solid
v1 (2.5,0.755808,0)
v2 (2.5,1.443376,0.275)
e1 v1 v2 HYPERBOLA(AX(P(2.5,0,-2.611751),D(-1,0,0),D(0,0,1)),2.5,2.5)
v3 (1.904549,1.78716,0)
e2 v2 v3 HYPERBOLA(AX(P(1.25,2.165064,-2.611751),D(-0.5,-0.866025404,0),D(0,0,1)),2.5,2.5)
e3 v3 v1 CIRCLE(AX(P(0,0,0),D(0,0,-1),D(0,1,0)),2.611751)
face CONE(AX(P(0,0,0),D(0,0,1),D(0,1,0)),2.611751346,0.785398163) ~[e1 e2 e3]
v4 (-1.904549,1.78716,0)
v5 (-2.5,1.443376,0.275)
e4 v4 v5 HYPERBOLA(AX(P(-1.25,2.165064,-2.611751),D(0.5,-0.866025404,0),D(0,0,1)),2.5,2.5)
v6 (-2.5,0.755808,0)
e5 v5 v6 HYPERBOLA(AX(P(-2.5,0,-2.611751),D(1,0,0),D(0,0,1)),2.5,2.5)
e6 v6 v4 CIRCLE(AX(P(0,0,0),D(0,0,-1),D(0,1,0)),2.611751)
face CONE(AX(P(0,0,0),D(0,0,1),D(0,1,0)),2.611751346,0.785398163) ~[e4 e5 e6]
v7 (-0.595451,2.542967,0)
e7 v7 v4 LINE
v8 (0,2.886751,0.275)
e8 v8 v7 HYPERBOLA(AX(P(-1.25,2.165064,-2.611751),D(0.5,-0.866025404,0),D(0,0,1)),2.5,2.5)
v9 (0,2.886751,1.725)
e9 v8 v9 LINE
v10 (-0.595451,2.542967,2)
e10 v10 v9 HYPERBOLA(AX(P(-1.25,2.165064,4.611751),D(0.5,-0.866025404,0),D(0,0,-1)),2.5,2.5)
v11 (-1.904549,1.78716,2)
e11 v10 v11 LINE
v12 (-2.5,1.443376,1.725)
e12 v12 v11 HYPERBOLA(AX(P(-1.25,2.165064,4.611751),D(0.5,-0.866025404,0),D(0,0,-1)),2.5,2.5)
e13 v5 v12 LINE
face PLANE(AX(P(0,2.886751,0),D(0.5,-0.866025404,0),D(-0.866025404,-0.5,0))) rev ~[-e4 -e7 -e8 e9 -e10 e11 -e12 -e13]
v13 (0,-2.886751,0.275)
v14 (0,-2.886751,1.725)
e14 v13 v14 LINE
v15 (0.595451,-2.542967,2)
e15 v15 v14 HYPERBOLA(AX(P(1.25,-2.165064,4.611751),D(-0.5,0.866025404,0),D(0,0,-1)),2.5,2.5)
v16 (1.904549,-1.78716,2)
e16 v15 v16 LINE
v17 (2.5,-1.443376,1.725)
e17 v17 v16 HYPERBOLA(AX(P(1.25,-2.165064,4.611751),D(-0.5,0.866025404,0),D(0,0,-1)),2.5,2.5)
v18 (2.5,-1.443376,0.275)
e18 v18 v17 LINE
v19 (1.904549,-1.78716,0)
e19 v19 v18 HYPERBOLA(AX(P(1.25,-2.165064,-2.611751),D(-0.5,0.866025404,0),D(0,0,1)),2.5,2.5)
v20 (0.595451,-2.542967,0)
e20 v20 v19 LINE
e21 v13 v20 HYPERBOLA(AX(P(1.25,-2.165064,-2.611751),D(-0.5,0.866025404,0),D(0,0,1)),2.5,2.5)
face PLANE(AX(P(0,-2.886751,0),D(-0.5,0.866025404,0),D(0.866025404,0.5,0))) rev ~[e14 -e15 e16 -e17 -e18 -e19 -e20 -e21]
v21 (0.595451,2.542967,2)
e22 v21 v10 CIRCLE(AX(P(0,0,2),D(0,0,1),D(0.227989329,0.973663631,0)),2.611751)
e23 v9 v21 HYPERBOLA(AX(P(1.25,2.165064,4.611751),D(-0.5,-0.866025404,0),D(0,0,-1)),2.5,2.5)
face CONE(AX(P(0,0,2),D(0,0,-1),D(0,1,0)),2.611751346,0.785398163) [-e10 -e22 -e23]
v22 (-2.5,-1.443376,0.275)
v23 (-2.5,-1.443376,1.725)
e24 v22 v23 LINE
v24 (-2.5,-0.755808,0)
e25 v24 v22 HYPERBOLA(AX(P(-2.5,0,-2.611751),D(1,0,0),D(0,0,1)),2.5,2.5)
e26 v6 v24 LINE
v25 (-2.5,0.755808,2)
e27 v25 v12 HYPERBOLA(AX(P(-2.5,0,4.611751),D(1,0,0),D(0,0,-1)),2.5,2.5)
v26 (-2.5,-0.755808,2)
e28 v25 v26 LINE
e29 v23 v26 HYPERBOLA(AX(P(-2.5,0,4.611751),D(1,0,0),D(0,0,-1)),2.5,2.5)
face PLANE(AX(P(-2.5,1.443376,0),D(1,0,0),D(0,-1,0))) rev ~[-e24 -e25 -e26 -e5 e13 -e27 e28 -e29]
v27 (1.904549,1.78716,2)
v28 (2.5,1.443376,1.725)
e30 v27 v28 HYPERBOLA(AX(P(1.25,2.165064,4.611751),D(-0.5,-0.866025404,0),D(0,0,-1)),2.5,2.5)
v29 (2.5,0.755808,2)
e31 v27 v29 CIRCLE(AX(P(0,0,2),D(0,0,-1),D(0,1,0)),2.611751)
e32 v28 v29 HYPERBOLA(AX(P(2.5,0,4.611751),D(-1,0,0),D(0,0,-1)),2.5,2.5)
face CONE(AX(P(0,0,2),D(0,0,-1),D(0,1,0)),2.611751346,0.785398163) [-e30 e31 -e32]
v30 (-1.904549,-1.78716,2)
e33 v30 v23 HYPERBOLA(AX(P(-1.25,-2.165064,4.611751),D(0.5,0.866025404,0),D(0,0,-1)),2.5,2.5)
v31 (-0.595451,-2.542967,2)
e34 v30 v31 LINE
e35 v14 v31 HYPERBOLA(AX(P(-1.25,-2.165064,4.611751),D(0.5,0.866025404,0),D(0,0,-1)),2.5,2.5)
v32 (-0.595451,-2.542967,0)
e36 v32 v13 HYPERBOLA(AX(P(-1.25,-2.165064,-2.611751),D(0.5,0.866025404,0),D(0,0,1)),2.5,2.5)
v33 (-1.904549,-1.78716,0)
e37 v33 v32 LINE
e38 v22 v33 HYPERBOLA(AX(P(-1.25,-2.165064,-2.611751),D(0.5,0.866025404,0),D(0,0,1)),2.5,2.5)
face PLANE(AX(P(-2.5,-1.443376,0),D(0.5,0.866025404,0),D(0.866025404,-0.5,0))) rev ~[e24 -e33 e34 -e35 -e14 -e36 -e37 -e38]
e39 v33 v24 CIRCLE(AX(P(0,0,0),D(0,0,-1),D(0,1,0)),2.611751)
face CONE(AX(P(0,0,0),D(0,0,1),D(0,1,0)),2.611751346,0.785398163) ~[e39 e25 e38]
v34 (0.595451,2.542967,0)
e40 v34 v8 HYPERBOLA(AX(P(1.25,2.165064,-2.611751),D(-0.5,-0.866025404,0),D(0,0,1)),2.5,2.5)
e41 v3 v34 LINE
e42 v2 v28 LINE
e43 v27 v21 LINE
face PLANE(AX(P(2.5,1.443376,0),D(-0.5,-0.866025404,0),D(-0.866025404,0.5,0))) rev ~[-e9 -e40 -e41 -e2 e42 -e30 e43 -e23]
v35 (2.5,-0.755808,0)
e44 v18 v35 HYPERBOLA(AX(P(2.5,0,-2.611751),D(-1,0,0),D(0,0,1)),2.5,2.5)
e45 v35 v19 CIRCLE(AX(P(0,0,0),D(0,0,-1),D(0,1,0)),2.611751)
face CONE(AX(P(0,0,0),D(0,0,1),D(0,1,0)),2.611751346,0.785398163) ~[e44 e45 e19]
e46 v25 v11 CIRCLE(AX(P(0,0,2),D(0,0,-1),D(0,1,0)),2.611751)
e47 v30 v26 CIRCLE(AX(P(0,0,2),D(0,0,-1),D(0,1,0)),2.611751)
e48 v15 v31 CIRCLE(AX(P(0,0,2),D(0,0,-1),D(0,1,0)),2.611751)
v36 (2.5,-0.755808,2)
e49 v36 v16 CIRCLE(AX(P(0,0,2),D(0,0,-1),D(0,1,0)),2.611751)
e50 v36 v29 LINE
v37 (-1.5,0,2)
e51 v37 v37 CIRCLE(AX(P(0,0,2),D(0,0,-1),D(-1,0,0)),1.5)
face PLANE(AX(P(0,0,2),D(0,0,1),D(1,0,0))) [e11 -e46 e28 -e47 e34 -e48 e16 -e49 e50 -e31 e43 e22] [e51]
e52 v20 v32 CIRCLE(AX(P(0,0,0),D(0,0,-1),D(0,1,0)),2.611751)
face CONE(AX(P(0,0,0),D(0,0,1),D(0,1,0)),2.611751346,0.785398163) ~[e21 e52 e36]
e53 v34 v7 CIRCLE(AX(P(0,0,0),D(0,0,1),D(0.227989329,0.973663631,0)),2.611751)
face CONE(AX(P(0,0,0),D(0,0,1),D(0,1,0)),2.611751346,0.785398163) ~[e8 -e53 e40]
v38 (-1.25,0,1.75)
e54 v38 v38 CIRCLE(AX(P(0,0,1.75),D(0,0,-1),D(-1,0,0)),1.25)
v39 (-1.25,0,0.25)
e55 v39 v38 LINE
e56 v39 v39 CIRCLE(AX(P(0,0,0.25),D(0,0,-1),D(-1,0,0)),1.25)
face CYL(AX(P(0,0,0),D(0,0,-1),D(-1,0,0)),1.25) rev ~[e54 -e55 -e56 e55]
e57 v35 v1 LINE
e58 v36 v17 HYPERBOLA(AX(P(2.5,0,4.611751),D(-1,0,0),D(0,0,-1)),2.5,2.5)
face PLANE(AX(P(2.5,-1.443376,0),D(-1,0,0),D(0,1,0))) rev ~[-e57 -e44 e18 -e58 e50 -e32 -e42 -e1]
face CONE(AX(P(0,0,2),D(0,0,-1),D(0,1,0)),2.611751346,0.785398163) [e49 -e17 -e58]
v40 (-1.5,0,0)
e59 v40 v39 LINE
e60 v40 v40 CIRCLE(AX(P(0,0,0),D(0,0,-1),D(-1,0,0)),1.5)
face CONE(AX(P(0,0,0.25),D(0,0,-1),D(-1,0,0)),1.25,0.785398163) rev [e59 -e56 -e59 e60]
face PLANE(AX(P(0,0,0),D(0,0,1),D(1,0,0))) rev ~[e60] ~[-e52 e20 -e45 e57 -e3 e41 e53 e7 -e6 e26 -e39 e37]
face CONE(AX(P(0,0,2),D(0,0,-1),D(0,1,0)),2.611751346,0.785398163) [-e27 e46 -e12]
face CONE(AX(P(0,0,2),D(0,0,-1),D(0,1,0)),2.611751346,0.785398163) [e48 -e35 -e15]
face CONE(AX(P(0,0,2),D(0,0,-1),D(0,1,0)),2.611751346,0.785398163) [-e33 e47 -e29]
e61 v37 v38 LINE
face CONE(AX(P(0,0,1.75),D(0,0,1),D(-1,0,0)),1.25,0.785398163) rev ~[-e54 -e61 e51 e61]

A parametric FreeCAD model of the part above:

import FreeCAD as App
import Part
import Sketcher

V = App.Vector
Q = App.Units.Quantity


def edges_at(feature, points):
    """Names of the edges that pass closest to the given points."""
    edges = feature.Shape.Edges
    near = lambda p: min(range(len(edges)), key=lambda i: edges[i].distToShape(Part.Vertex(*p))[0])
    return sorted({f"Edge{near(p) + 1}" for p in points})

doc = App.newDocument("Part")
body = doc.addObject("PartDesign::Body", "Body")

# Sketch on XY plane
sketch1 = doc.addObject("Sketcher::SketchObject", "Sketch")
body.addObject(sketch1)
sketch1.AttachmentSupport = (doc.XY_Plane, [""])
sketch1.MapMode = "FlatFace"
sketch1.addGeometry(Part.LineSegment(V(0, 2.886751, 0), V(-2.5, 1.443376, 0)), False)
sketch1.addGeometry(Part.LineSegment(V(-2.5, 1.443376, 0), V(-2.5, -1.443376, 0)), False)
sketch1.addGeometry(Part.LineSegment(V(-2.5, -1.443376, 0), V(0, -2.886751, 0)), False)
sketch1.addGeometry(Part.LineSegment(V(0, -2.886751, 0), V(2.5, -1.443376, 0)), False)
sketch1.addGeometry(Part.LineSegment(V(2.5, -1.443376, 0), V(2.5, 1.443376, 0)), False)
sketch1.addGeometry(Part.LineSegment(V(2.5, 1.443376, 0), V(0, 2.886751, 0)), False)
sketch1.addConstraint(Sketcher.Constraint("Coincident", 0, 2, 1, 1))
sketch1.addConstraint(Sketcher.Constraint("Coincident", 1, 2, 2, 1))
sketch1.addConstraint(Sketcher.Constraint("Coincident", 2, 2, 3, 1))
sketch1.addConstraint(Sketcher.Constraint("Coincident", 3, 2, 4, 1))
sketch1.addConstraint(Sketcher.Constraint("Coincident", 4, 2, 5, 1))
sketch1.addConstraint(Sketcher.Constraint("Coincident", 5, 2, 0, 1))
sketch1.addConstraint(Sketcher.Constraint("Vertical", 1))
sketch1.addConstraint(Sketcher.Constraint("Vertical", 4))
sketch1.addConstraint(Sketcher.Constraint("Symmetric", 0, 2, 3, 2, -1, 1))
sketch1.addConstraint(Sketcher.Constraint("Symmetric", 2, 2, 5, 2, -1, 1))
sketch1.addConstraint(Sketcher.Constraint("PointOnObject", 2, 2, -2))
sketch1.addConstraint(Sketcher.Constraint("Parallel", 2, 5))
sketch1.addConstraint(Sketcher.Constraint("Horizontal", 1, 2, 3, 2))
sketch1.addConstraint(Sketcher.Constraint("Angle", 0, Q("-150 deg")))
sketch1.addConstraint(Sketcher.Constraint("DistanceX", 1, 2, 3, 2, 5.0))
sketch1.addConstraint(Sketcher.Constraint("DistanceY", 1, 2, 1, 1, 2.886751))
pad1 = doc.addObject("PartDesign::Pad", "Pad")
body.addObject(pad1)
pad1.Profile = sketch1
pad1.Length = 2

# Sketch on YZ plane
sketch2 = doc.addObject("Sketcher::SketchObject", "Sketch001")
body.addObject(sketch2)
sketch2.AttachmentSupport = (doc.YZ_Plane, [""])
sketch2.MapMode = "FlatFace"
sketch2.addGeometry(Part.LineSegment(V(2.886751, 2, 0), V(2.611751, 2, 0)), False)
sketch2.addGeometry(Part.LineSegment(V(2.611751, 2, 0), V(2.886751, 1.725, 0)), False)
sketch2.addGeometry(Part.LineSegment(V(2.886751, 1.725, 0), V(2.886751, 2, 0)), False)
sketch2.addGeometry(Part.LineSegment(V(2.886751, 0, 0), V(2.886751, 0.275, 0)), False)
sketch2.addGeometry(Part.LineSegment(V(2.886751, 0.275, 0), V(2.611751, 0, 0)), False)
sketch2.addGeometry(Part.LineSegment(V(2.611751, 0, 0), V(2.886751, 0, 0)), False)
sketch2.addConstraint(Sketcher.Constraint("Coincident", 0, 2, 1, 1))
sketch2.addConstraint(Sketcher.Constraint("Coincident", 1, 2, 2, 1))
sketch2.addConstraint(Sketcher.Constraint("Coincident", 2, 2, 0, 1))
sketch2.addConstraint(Sketcher.Constraint("Coincident", 3, 2, 4, 1))
sketch2.addConstraint(Sketcher.Constraint("Coincident", 4, 2, 5, 1))
sketch2.addConstraint(Sketcher.Constraint("Coincident", 5, 2, 3, 1))
sketch2.addConstraint(Sketcher.Constraint("Horizontal", 0))
sketch2.addConstraint(Sketcher.Constraint("Vertical", 2))
sketch2.addConstraint(Sketcher.Constraint("Vertical", 3))
sketch2.addConstraint(Sketcher.Constraint("Horizontal", 5))
sketch2.addConstraint(Sketcher.Constraint("PointOnObject", 4, 2, -1))
sketch2.addConstraint(Sketcher.Constraint("Perpendicular", 1, 4))
sketch2.addConstraint(Sketcher.Constraint("Vertical", 2, 2, 3, 2))
sketch2.addConstraint(Sketcher.Constraint("Vertical", 0, 2, 4, 2))
sketch2.addConstraint(Sketcher.Constraint("Equal", 5, 2))
sketch2.addConstraint(Sketcher.Constraint("DistanceY", -1, 1, 0, 2, 2.0))
sketch2.addConstraint(Sketcher.Constraint("DistanceX", 0, 2, 0, 1, 0.275))
sketch2.addConstraint(Sketcher.Constraint("DistanceX", -1, 1, 0, 2, 2.611751))
groove = doc.addObject("PartDesign::Groove", "Groove")
body.addObject(groove)
groove.Profile = sketch2
groove.ReferenceAxis = (sketch2, ["V_Axis"])
groove.Angle = 360

# Sketch on XY plane
sketch3 = doc.addObject("Sketcher::SketchObject", "Sketch002")
body.addObject(sketch3)
sketch3.AttachmentSupport = (doc.XY_Plane, [""])
sketch3.MapMode = "FlatFace"
sketch3.addGeometry(Part.Circle(V(0, 0, 0), V(0, 0, 1), 1.25), False)
sketch3.addConstraint(Sketcher.Constraint("Coincident", 0, 3, -1, 1))
sketch3.addConstraint(Sketcher.Constraint("Diameter", 0, 2.5))
pocket1 = doc.addObject("PartDesign::Pocket", "Pocket")
body.addObject(pocket1)
pocket1.Profile = sketch3
pocket1.Type = "ThroughAll"
pocket1.Reversed = True
doc.recompute()

chamfer = doc.addObject("PartDesign::Chamfer", "Chamfer")
body.addObject(chamfer)
chamfer.Base = (pocket1, edges_at(pocket1, [(1.25, 0, 2), (1.25, 0, 0)]))
chamfer.Size = 0.25

doc.recompute()
